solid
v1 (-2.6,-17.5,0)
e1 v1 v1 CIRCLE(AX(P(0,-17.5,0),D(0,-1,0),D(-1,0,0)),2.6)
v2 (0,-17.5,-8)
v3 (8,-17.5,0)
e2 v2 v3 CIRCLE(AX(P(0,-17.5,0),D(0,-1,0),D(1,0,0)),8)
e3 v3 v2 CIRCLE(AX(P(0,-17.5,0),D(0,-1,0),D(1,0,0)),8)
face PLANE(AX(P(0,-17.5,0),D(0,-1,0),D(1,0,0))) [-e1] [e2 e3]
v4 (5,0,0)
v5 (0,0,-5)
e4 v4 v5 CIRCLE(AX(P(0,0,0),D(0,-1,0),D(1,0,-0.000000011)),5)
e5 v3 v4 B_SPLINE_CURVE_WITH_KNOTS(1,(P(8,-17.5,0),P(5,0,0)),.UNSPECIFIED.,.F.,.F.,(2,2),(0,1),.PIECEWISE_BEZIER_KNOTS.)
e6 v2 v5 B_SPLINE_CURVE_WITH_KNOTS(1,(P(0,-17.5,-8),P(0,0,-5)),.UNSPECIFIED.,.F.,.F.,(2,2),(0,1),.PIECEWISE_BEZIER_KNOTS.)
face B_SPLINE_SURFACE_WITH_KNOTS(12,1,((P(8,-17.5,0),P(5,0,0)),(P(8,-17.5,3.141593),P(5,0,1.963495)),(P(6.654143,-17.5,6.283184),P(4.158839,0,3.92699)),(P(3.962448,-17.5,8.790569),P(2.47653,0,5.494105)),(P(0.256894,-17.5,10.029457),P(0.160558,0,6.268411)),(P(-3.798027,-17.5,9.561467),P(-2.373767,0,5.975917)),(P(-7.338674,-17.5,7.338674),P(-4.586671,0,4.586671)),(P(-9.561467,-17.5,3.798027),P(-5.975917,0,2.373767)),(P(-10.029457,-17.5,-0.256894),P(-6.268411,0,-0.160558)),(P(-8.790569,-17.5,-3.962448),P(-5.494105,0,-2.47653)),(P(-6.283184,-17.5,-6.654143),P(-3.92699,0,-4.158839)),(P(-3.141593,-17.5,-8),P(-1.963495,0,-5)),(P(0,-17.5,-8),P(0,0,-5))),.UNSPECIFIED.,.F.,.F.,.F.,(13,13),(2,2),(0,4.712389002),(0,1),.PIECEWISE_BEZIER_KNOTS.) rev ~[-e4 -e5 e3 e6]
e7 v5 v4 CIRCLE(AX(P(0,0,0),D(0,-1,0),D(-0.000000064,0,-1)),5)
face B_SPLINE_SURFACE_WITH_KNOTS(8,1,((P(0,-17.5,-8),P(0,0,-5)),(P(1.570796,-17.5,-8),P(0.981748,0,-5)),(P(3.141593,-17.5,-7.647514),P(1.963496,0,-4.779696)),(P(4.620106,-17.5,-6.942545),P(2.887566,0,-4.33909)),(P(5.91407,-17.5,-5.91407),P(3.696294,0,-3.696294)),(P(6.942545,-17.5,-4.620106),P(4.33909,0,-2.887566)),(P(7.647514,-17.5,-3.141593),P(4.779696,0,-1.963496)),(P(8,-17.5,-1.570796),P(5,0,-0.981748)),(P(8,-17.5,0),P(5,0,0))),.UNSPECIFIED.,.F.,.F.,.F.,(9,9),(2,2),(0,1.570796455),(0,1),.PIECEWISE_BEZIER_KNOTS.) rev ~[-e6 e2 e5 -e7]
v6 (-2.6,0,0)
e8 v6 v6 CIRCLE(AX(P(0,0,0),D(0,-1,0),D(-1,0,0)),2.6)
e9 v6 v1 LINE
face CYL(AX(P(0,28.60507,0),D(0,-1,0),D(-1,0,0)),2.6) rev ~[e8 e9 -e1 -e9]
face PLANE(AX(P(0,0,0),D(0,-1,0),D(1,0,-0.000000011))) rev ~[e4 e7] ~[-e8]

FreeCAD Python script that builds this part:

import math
import FreeCAD as App
import Part
import Sketcher

doc = App.newDocument("Part")
body = doc.addObject("PartDesign::Body", "Body")

# Sketch on XZ plane
sketch1 = body.newObject("Sketcher::SketchObject", "Sketch")
sketch1.AttachmentSupport = (doc.getObject("XZ_Plane"), [""])
sketch1.MapMode = "FlatFace"
sketch1.AttachmentOffset = App.Placement(App.Vector(0, 0, 17.5), App.Rotation())
sketch1.addGeometry(Part.Circle(App.Vector(0, 0, 0), App.Vector(0, 0, 1), 8), False)
sketch1.addConstraint([
    Sketcher.Constraint("Coincident", 0, 3, -1, 1),
    Sketcher.Constraint("Diameter", 0, 16.0),
])

# Sketch on XZ plane
sketch2 = body.newObject("Sketcher::SketchObject", "Sketch001")
sketch2.AttachmentSupport = (doc.getObject("XZ_Plane"), [""])
sketch2.MapMode = "FlatFace"
sketch2.addGeometry([
    Part.ArcOfCircle(Part.Circle(App.Vector(0, 0, 0), App.Vector(0, 0, 1), 5), math.radians(-90.000004), math.radians(0.000004)),
    Part.ArcOfCircle(Part.Circle(App.Vector(0, 0, 0), App.Vector(0, 0, 1), 5), math.radians(-0.000001), math.radians(270.000001)),
], False)
sketch2.addConstraint([
    Sketcher.Constraint("Tangent", 0, 1, 1, 2),
    Sketcher.Constraint("Coincident", 1, 1, 0, 2),
    Sketcher.Constraint("Coincident", 0, 3, -1, 1),
    Sketcher.Constraint("PointOnObject", 0, 1, -2),
    Sketcher.Constraint("PointOnObject", 1, 1, -1),
    Sketcher.Constraint("Radius", 0, 5.0),
])

additiveloft = body.newObject("PartDesign::AdditiveLoft", "AdditiveLoft")
additiveloft.Profile = sketch1
additiveloft.Sections = [sketch2]

# Sketch on XZ plane
sketch3 = body.newObject("Sketcher::SketchObject", "Sketch002")
sketch3.AttachmentSupport = (doc.getObject("XZ_Plane"), [""])
sketch3.MapMode = "FlatFace"
sketch3.addGeometry(Part.Circle(App.Vector(0, 0, 0), App.Vector(0, 0, 1), 2.6), False)
sketch3.addConstraint([
    Sketcher.Constraint("Coincident", 0, 3, -1, 1),
    Sketcher.Constraint("Diameter", 0, 5.2),
])
doc.recompute()
hole = body.newObject("PartDesign::Hole", "Hole")
hole.Profile = sketch3
hole.ThreadType = "None"
hole.Diameter = 5.2
hole.DepthType = "ThroughAll"
hole.Reversed = True

doc.recompute()
